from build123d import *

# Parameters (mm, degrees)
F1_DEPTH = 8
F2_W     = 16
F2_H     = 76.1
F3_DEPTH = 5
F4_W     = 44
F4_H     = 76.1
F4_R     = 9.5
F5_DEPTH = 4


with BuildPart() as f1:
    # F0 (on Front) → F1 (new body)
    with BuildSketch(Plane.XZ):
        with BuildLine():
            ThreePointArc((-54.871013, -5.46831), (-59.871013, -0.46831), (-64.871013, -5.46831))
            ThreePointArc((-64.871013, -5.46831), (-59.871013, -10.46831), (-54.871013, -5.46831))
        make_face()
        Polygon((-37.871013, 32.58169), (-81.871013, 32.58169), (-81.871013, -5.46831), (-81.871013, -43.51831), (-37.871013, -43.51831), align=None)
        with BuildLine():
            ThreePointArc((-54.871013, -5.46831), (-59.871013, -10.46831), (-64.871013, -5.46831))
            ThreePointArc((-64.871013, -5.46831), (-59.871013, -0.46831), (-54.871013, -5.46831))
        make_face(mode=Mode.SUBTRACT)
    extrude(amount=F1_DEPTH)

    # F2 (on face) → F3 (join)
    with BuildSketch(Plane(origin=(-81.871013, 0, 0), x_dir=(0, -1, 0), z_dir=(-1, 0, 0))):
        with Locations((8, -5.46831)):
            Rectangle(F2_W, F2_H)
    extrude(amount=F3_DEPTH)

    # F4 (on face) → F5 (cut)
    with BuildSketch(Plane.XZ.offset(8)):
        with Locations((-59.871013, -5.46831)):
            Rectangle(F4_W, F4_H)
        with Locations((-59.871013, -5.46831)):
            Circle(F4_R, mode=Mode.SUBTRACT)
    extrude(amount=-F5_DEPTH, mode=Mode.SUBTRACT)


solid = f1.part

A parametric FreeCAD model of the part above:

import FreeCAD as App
import Part
import Sketcher


def add_polygon(sketch, points):
    """Adds a closed chain of lines whose ends are joined by coincident constraints."""
    first, n = sketch.GeometryCount, len(points)
    for a, b in zip(points, points[1:] + points[:1]):
        sketch.addGeometry(Part.LineSegment(App.Vector(*a, 0), App.Vector(*b, 0)), False)
    for i in range(n):
        sketch.addConstraint(Sketcher.Constraint("Coincident", first + i, 2, first + (i + 1) % n, 1))

doc = App.newDocument("Part")
body = doc.addObject("PartDesign::Body", "Body")

sketch1 = body.newObject("Sketcher::SketchObject", "Sketch")
sketch1.AttachmentSupport = (doc.getObject("XZ_Plane"), [""])
sketch1.MapMode = "FlatFace"
add_polygon(sketch1, [(-37.871013, 32.58169), (-81.871013, 32.58169), (-81.871013, -43.51831), (-37.871013, -43.51831)])
sketch1.addGeometry(Part.Circle(App.Vector(-59.871013, -5.46831, 0), App.Vector(0, 0, 1), 5), False)
sketch1.addConstraint([
    Sketcher.Constraint("Horizontal", 0),
    Sketcher.Constraint("Vertical", 1),
    Sketcher.Constraint("Horizontal", 2),
    Sketcher.Constraint("Vertical", 3),
    Sketcher.Constraint("Diameter", 4, 10.0),
    Sketcher.Constraint("DistanceX", 0, 2, 0, 1, 44.0),
    Sketcher.Constraint("DistanceY", 1, 2, 1, 1, 76.1),
    Sketcher.Constraint("DistanceX", 0, 2, 4, 3, 22.0),
    Sketcher.Constraint("DistanceY", 4, 3, 0, 2, 38.05),
    Sketcher.Constraint("DistanceY", 4, 3, -1, 1, 5.46831),
    Sketcher.Constraint("DistanceX", 4, 3, -1, 1, 59.871013),
])
pad1 = body.newObject("PartDesign::Pad", "Pad")
pad1.Profile = sketch1
pad1.Length = 8

sketch2 = body.newObject("Sketcher::SketchObject", "Sketch001")
sketch2.AttachmentSupport = (doc.getObject("YZ_Plane"), [""])
sketch2.MapMode = "FlatFace"
sketch2.AttachmentOffset = App.Placement(App.Vector(0, 0, -81.871013), App.Rotation())
add_polygon(sketch2, [(0, 32.58169), (0, -43.51831), (-16, -43.51831), (-16, 32.58169)])
sketch2.addConstraint([
    Sketcher.Constraint("Vertical", 0),
    Sketcher.Constraint("Horizontal", 1),
    Sketcher.Constraint("Vertical", 2),
    Sketcher.Constraint("Horizontal", 3),
    Sketcher.Constraint("PointOnObject", 0, 2, -2),
    Sketcher.Constraint("DistanceX", 1, 2, 1, 1, 16.0),
    Sketcher.Constraint("DistanceY", 0, 2, 0, 1, 76.1),
    Sketcher.Constraint("DistanceY", 0, 2, -1, 1, 43.51831),
])
pad2 = body.newObject("PartDesign::Pad", "Pad001")
pad2.Profile = sketch2
pad2.Length = 5
pad2.Reversed = True

sketch3 = body.newObject("Sketcher::SketchObject", "Sketch002")
sketch3.AttachmentSupport = (doc.getObject("XZ_Plane"), [""])
sketch3.MapMode = "FlatFace"
sketch3.AttachmentOffset = App.Placement(App.Vector(0, 0, 8), App.Rotation())
add_polygon(sketch3, [(-81.871013, 32.58169), (-81.871013, -43.51831), (-37.871013, -43.51831), (-37.871013, 32.58169)])
sketch3.addGeometry(Part.Circle(App.Vector(-59.871013, -5.46831, 0), App.Vector(0, 0, 1), 9.5), False)
sketch3.addConstraint([
    Sketcher.Constraint("Vertical", 0),
    Sketcher.Constraint("Horizontal", 1),
    Sketcher.Constraint("Vertical", 2),
    Sketcher.Constraint("Horizontal", 3),
    Sketcher.Constraint("Diameter", 4, 19.0),
    Sketcher.Constraint("DistanceX", 1, 1, 1, 2, 44.0),
    Sketcher.Constraint("DistanceY", 0, 2, 0, 1, 76.1),
    Sketcher.Constraint("DistanceX", 0, 2, 4, 3, 22.0),
    Sketcher.Constraint("DistanceY", 0, 2, 4, 3, 38.05),
    Sketcher.Constraint("DistanceY", 4, 3, -1, 1, 5.46831),
    Sketcher.Constraint("DistanceX", 4, 3, -1, 1, 59.871013),
])
pocket1 = body.newObject("PartDesign::Pocket", "Pocket")
pocket1.Profile = sketch3
pocket1.Length = 4

doc.recompute()
